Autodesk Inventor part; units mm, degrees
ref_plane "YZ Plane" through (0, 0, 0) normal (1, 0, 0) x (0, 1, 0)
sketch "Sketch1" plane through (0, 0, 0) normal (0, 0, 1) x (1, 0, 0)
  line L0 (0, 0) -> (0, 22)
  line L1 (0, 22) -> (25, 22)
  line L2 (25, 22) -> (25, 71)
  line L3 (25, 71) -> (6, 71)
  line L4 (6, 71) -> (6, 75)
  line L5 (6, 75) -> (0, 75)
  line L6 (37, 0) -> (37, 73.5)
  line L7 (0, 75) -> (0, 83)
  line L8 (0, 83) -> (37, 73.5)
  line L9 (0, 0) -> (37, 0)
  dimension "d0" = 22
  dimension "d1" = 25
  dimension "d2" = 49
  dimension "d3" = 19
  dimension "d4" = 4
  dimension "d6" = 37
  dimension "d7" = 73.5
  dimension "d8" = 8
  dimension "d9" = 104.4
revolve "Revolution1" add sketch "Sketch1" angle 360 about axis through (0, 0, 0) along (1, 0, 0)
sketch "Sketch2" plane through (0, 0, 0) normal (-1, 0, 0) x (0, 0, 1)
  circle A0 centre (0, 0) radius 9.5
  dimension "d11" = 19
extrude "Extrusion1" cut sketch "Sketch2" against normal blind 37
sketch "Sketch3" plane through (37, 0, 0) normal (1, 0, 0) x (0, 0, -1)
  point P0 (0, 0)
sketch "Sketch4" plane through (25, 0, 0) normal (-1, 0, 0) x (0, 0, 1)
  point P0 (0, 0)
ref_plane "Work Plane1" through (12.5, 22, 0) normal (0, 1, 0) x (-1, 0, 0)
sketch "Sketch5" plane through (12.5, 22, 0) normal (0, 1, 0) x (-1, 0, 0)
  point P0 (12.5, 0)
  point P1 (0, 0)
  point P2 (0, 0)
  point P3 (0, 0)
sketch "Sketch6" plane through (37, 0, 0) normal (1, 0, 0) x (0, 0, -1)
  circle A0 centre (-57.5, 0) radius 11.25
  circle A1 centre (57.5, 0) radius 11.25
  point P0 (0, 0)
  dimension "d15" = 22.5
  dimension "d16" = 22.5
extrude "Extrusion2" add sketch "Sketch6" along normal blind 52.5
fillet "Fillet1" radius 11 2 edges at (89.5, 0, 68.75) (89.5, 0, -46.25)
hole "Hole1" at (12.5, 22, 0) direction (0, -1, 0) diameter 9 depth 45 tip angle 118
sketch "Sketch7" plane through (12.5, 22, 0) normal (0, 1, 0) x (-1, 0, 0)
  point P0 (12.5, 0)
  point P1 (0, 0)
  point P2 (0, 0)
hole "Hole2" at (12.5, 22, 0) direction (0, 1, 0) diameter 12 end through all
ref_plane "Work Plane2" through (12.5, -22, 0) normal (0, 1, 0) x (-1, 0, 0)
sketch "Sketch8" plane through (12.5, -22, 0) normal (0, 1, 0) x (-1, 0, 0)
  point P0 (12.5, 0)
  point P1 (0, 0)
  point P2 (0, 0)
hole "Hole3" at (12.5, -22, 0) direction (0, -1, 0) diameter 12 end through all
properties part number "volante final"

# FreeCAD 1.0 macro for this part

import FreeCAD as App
import Part
import Sketcher

V = App.Vector


def edges_at(feature, points):
    """Names of the edges that pass closest to the given points."""
    edges = feature.Shape.Edges
    near = lambda p: min(range(len(edges)), key=lambda i: edges[i].distToShape(Part.Vertex(*p))[0])
    return sorted({f"Edge{near(p) + 1}" for p in points})

doc = App.newDocument("Part")
body = doc.addObject("PartDesign::Body", "Body")

sketch1 = body.newObject("Sketcher::SketchObject", "Sketch")
sketch1.AttachmentSupport = (doc.getObject("XY_Plane"), [""])
sketch1.MapMode = "FlatFace"
sketch1.addGeometry([
    Part.LineSegment(V(0, 22, 0), V(0, 0, 0)),
    Part.LineSegment(V(0, 0, 0), V(37, 0, 0)),
    Part.LineSegment(V(37, 0, 0), V(37, 73.5, 0)),
    Part.LineSegment(V(37, 73.5, 0), V(0, 83, 0)),
    Part.LineSegment(V(0, 83, 0), V(0, 75, 0)),
    Part.LineSegment(V(0, 75, 0), V(6, 75, 0)),
    Part.LineSegment(V(6, 75, 0), V(6, 71, 0)),
    Part.LineSegment(V(6, 71, 0), V(25, 71, 0)),
    Part.LineSegment(V(25, 71, 0), V(25, 22, 0)),
    Part.LineSegment(V(25, 22, 0), V(0, 22, 0)),
], False)
sketch1.addConstraint([
    Sketcher.Constraint("Coincident", 0, 2, 1, 1),
    Sketcher.Constraint("Coincident", 1, 2, 2, 1),
    Sketcher.Constraint("Coincident", 2, 2, 3, 1),
    Sketcher.Constraint("Coincident", 3, 2, 4, 1),
    Sketcher.Constraint("Coincident", 4, 2, 5, 1),
    Sketcher.Constraint("Coincident", 5, 2, 6, 1),
    Sketcher.Constraint("Coincident", 6, 2, 7, 1),
    Sketcher.Constraint("Coincident", 7, 2, 8, 1),
    Sketcher.Constraint("Coincident", 8, 2, 9, 1),
    Sketcher.Constraint("Coincident", 9, 2, 0, 1),
    Sketcher.Constraint("Vertical", 0),
    Sketcher.Constraint("Horizontal", 1),
    Sketcher.Constraint("Vertical", 2),
    Sketcher.Constraint("Vertical", 4),
    Sketcher.Constraint("Horizontal", 5),
    Sketcher.Constraint("Vertical", 6),
    Sketcher.Constraint("Horizontal", 7),
    Sketcher.Constraint("Vertical", 8),
    Sketcher.Constraint("Horizontal", 9),
    Sketcher.Constraint("Coincident", 0, 2, -1, 1),
    Sketcher.Constraint("PointOnObject", 3, 2, -2),
    Sketcher.Constraint("DistanceX", 1, 1, 1, 2, 37.0),
    Sketcher.Constraint("DistanceX", 7, 1, 7, 2, 19.0),
    Sketcher.Constraint("DistanceX", 9, 2, 9, 1, 25.0),
    Sketcher.Constraint("DistanceY", 0, 2, 0, 1, 22.0),
    Sketcher.Constraint("DistanceY", 4, 2, 4, 1, 8.0),
    Sketcher.Constraint("DistanceY", 6, 2, 6, 1, 4.0),
    Sketcher.Constraint("DistanceY", 8, 2, 8, 1, 49.0),
    Sketcher.Constraint("DistanceY", 2, 1, 2, 2, 73.5),
])
revolution = body.newObject("PartDesign::Revolution", "Revolution")
revolution.Profile = sketch1
revolution.ReferenceAxis = (sketch1, ["H_Axis"])
revolution.Angle = 360

sketch2 = body.newObject("Sketcher::SketchObject", "Sketch001")
sketch2.AttachmentSupport = (doc.getObject("YZ_Plane"), [""])
sketch2.MapMode = "FlatFace"
sketch2.addGeometry(Part.Circle(V(0, 0, 0), V(0, 0, 1), 10), False)
sketch2.addConstraint([
    Sketcher.Constraint("Coincident", 0, 3, -1, 1),
    Sketcher.Constraint("Diameter", 0, 19.0),
])
pocket1 = body.newObject("PartDesign::Pocket", "Pocket")
pocket1.Profile = sketch2
pocket1.Length = 37
pocket1.Reversed = True

sketch3 = body.newObject("Sketcher::SketchObject", "Sketch002")
sketch3.AttachmentSupport = (doc.getObject("YZ_Plane"), [""])
sketch3.MapMode = "FlatFace"
sketch3.AttachmentOffset = App.Placement(V(0, 0, 37), App.Rotation())
sketch3.addGeometry([
    Part.Circle(V(0, 58, 0), V(0, 0, 1), 11),
    Part.Circle(V(0, -58, 0), V(0, 0, 1), 11),
], False)
sketch3.addConstraint([
    Sketcher.Constraint("Equal", 0, 1),
    Sketcher.Constraint("Symmetric", 0, 3, 1, 3, -1, 1),
    Sketcher.Constraint("PointOnObject", 0, 3, -2),
    Sketcher.Constraint("Diameter", 0, 22.5),
    Sketcher.Constraint("DistanceY", 1, 3, 0, 3, 115.0),
])
pad1 = body.newObject("PartDesign::Pad", "Pad")
pad1.Profile = sketch3
pad1.Length = 52.5
doc.recompute()

fillet = body.newObject("PartDesign::Fillet", "Fillet")
fillet.Base = (pad1, edges_at(pad1, [(89.5, 0, 68.75), (89.5, 0, -46.25)]))
fillet.Radius = 11

sketch4 = body.newObject("Sketcher::SketchObject", "Sketch003")
sketch4.AttachmentSupport = (doc.getObject("XZ_Plane"), [""])
sketch4.MapMode = "FlatFace"
sketch4.AttachmentOffset = App.Placement(V(0, 0, -22), App.Rotation())
sketch4.addGeometry(Part.Circle(V(12.5, 0, 0), V(0, 0, 1), 4.5), False)
sketch4.addConstraint([
    Sketcher.Constraint("PointOnObject", 0, 3, -1),
    Sketcher.Constraint("Diameter", 0, 9.0),
    Sketcher.Constraint("DistanceX", -1, 1, 0, 3, 12.5),
])
doc.recompute()
hole = body.newObject("PartDesign::Hole", "Hole")
hole.Profile = sketch4
hole.ThreadType = "None"
hole.Diameter = 9
hole.DepthType = "Dimension"
hole.Depth = 45
hole.DrillPoint = "Angled"
hole.DrillPointAngle = 118
hole.Reversed = True

sketch5 = body.newObject("Sketcher::SketchObject", "Sketch004")
sketch5.AttachmentSupport = (doc.getObject("XZ_Plane"), [""])
sketch5.MapMode = "FlatFace"
sketch5.AttachmentOffset = App.Placement(V(0, 0, -22), App.Rotation())
sketch5.addGeometry(Part.Circle(V(12, 0, 0), V(0, 0, 1), 6), False)
sketch5.addConstraint([
    Sketcher.Constraint("PointOnObject", 0, 3, -1),
    Sketcher.Constraint("Diameter", 0, 12.0),
    Sketcher.Constraint("DistanceX", -1, 1, 0, 3, 12.5),
])
doc.recompute()
hole2 = body.newObject("PartDesign::Hole", "Hole001")
hole2.Profile = sketch5
hole2.ThreadType = "None"
hole2.Diameter = 12
hole2.DepthType = "ThroughAll"

sketch6 = body.newObject("Sketcher::SketchObject", "Sketch005")
sketch6.AttachmentSupport = (doc.getObject("XZ_Plane"), [""])
sketch6.MapMode = "FlatFace"
sketch6.AttachmentOffset = App.Placement(V(0, 0, 22), App.Rotation())
sketch6.addGeometry(Part.Circle(V(12, 0, 0), V(0, 0, 1), 6), False)
sketch6.addConstraint([
    Sketcher.Constraint("PointOnObject", 0, 3, -1),
    Sketcher.Constraint("Diameter", 0, 12.0),
    Sketcher.Constraint("DistanceX", -1, 1, 0, 3, 12.5),
])
doc.recompute()
hole3 = body.newObject("PartDesign::Hole", "Hole002")
hole3.Profile = sketch6
hole3.ThreadType = "None"
hole3.Diameter = 12
hole3.DepthType = "ThroughAll"
hole3.Reversed = True

doc.recompute()
